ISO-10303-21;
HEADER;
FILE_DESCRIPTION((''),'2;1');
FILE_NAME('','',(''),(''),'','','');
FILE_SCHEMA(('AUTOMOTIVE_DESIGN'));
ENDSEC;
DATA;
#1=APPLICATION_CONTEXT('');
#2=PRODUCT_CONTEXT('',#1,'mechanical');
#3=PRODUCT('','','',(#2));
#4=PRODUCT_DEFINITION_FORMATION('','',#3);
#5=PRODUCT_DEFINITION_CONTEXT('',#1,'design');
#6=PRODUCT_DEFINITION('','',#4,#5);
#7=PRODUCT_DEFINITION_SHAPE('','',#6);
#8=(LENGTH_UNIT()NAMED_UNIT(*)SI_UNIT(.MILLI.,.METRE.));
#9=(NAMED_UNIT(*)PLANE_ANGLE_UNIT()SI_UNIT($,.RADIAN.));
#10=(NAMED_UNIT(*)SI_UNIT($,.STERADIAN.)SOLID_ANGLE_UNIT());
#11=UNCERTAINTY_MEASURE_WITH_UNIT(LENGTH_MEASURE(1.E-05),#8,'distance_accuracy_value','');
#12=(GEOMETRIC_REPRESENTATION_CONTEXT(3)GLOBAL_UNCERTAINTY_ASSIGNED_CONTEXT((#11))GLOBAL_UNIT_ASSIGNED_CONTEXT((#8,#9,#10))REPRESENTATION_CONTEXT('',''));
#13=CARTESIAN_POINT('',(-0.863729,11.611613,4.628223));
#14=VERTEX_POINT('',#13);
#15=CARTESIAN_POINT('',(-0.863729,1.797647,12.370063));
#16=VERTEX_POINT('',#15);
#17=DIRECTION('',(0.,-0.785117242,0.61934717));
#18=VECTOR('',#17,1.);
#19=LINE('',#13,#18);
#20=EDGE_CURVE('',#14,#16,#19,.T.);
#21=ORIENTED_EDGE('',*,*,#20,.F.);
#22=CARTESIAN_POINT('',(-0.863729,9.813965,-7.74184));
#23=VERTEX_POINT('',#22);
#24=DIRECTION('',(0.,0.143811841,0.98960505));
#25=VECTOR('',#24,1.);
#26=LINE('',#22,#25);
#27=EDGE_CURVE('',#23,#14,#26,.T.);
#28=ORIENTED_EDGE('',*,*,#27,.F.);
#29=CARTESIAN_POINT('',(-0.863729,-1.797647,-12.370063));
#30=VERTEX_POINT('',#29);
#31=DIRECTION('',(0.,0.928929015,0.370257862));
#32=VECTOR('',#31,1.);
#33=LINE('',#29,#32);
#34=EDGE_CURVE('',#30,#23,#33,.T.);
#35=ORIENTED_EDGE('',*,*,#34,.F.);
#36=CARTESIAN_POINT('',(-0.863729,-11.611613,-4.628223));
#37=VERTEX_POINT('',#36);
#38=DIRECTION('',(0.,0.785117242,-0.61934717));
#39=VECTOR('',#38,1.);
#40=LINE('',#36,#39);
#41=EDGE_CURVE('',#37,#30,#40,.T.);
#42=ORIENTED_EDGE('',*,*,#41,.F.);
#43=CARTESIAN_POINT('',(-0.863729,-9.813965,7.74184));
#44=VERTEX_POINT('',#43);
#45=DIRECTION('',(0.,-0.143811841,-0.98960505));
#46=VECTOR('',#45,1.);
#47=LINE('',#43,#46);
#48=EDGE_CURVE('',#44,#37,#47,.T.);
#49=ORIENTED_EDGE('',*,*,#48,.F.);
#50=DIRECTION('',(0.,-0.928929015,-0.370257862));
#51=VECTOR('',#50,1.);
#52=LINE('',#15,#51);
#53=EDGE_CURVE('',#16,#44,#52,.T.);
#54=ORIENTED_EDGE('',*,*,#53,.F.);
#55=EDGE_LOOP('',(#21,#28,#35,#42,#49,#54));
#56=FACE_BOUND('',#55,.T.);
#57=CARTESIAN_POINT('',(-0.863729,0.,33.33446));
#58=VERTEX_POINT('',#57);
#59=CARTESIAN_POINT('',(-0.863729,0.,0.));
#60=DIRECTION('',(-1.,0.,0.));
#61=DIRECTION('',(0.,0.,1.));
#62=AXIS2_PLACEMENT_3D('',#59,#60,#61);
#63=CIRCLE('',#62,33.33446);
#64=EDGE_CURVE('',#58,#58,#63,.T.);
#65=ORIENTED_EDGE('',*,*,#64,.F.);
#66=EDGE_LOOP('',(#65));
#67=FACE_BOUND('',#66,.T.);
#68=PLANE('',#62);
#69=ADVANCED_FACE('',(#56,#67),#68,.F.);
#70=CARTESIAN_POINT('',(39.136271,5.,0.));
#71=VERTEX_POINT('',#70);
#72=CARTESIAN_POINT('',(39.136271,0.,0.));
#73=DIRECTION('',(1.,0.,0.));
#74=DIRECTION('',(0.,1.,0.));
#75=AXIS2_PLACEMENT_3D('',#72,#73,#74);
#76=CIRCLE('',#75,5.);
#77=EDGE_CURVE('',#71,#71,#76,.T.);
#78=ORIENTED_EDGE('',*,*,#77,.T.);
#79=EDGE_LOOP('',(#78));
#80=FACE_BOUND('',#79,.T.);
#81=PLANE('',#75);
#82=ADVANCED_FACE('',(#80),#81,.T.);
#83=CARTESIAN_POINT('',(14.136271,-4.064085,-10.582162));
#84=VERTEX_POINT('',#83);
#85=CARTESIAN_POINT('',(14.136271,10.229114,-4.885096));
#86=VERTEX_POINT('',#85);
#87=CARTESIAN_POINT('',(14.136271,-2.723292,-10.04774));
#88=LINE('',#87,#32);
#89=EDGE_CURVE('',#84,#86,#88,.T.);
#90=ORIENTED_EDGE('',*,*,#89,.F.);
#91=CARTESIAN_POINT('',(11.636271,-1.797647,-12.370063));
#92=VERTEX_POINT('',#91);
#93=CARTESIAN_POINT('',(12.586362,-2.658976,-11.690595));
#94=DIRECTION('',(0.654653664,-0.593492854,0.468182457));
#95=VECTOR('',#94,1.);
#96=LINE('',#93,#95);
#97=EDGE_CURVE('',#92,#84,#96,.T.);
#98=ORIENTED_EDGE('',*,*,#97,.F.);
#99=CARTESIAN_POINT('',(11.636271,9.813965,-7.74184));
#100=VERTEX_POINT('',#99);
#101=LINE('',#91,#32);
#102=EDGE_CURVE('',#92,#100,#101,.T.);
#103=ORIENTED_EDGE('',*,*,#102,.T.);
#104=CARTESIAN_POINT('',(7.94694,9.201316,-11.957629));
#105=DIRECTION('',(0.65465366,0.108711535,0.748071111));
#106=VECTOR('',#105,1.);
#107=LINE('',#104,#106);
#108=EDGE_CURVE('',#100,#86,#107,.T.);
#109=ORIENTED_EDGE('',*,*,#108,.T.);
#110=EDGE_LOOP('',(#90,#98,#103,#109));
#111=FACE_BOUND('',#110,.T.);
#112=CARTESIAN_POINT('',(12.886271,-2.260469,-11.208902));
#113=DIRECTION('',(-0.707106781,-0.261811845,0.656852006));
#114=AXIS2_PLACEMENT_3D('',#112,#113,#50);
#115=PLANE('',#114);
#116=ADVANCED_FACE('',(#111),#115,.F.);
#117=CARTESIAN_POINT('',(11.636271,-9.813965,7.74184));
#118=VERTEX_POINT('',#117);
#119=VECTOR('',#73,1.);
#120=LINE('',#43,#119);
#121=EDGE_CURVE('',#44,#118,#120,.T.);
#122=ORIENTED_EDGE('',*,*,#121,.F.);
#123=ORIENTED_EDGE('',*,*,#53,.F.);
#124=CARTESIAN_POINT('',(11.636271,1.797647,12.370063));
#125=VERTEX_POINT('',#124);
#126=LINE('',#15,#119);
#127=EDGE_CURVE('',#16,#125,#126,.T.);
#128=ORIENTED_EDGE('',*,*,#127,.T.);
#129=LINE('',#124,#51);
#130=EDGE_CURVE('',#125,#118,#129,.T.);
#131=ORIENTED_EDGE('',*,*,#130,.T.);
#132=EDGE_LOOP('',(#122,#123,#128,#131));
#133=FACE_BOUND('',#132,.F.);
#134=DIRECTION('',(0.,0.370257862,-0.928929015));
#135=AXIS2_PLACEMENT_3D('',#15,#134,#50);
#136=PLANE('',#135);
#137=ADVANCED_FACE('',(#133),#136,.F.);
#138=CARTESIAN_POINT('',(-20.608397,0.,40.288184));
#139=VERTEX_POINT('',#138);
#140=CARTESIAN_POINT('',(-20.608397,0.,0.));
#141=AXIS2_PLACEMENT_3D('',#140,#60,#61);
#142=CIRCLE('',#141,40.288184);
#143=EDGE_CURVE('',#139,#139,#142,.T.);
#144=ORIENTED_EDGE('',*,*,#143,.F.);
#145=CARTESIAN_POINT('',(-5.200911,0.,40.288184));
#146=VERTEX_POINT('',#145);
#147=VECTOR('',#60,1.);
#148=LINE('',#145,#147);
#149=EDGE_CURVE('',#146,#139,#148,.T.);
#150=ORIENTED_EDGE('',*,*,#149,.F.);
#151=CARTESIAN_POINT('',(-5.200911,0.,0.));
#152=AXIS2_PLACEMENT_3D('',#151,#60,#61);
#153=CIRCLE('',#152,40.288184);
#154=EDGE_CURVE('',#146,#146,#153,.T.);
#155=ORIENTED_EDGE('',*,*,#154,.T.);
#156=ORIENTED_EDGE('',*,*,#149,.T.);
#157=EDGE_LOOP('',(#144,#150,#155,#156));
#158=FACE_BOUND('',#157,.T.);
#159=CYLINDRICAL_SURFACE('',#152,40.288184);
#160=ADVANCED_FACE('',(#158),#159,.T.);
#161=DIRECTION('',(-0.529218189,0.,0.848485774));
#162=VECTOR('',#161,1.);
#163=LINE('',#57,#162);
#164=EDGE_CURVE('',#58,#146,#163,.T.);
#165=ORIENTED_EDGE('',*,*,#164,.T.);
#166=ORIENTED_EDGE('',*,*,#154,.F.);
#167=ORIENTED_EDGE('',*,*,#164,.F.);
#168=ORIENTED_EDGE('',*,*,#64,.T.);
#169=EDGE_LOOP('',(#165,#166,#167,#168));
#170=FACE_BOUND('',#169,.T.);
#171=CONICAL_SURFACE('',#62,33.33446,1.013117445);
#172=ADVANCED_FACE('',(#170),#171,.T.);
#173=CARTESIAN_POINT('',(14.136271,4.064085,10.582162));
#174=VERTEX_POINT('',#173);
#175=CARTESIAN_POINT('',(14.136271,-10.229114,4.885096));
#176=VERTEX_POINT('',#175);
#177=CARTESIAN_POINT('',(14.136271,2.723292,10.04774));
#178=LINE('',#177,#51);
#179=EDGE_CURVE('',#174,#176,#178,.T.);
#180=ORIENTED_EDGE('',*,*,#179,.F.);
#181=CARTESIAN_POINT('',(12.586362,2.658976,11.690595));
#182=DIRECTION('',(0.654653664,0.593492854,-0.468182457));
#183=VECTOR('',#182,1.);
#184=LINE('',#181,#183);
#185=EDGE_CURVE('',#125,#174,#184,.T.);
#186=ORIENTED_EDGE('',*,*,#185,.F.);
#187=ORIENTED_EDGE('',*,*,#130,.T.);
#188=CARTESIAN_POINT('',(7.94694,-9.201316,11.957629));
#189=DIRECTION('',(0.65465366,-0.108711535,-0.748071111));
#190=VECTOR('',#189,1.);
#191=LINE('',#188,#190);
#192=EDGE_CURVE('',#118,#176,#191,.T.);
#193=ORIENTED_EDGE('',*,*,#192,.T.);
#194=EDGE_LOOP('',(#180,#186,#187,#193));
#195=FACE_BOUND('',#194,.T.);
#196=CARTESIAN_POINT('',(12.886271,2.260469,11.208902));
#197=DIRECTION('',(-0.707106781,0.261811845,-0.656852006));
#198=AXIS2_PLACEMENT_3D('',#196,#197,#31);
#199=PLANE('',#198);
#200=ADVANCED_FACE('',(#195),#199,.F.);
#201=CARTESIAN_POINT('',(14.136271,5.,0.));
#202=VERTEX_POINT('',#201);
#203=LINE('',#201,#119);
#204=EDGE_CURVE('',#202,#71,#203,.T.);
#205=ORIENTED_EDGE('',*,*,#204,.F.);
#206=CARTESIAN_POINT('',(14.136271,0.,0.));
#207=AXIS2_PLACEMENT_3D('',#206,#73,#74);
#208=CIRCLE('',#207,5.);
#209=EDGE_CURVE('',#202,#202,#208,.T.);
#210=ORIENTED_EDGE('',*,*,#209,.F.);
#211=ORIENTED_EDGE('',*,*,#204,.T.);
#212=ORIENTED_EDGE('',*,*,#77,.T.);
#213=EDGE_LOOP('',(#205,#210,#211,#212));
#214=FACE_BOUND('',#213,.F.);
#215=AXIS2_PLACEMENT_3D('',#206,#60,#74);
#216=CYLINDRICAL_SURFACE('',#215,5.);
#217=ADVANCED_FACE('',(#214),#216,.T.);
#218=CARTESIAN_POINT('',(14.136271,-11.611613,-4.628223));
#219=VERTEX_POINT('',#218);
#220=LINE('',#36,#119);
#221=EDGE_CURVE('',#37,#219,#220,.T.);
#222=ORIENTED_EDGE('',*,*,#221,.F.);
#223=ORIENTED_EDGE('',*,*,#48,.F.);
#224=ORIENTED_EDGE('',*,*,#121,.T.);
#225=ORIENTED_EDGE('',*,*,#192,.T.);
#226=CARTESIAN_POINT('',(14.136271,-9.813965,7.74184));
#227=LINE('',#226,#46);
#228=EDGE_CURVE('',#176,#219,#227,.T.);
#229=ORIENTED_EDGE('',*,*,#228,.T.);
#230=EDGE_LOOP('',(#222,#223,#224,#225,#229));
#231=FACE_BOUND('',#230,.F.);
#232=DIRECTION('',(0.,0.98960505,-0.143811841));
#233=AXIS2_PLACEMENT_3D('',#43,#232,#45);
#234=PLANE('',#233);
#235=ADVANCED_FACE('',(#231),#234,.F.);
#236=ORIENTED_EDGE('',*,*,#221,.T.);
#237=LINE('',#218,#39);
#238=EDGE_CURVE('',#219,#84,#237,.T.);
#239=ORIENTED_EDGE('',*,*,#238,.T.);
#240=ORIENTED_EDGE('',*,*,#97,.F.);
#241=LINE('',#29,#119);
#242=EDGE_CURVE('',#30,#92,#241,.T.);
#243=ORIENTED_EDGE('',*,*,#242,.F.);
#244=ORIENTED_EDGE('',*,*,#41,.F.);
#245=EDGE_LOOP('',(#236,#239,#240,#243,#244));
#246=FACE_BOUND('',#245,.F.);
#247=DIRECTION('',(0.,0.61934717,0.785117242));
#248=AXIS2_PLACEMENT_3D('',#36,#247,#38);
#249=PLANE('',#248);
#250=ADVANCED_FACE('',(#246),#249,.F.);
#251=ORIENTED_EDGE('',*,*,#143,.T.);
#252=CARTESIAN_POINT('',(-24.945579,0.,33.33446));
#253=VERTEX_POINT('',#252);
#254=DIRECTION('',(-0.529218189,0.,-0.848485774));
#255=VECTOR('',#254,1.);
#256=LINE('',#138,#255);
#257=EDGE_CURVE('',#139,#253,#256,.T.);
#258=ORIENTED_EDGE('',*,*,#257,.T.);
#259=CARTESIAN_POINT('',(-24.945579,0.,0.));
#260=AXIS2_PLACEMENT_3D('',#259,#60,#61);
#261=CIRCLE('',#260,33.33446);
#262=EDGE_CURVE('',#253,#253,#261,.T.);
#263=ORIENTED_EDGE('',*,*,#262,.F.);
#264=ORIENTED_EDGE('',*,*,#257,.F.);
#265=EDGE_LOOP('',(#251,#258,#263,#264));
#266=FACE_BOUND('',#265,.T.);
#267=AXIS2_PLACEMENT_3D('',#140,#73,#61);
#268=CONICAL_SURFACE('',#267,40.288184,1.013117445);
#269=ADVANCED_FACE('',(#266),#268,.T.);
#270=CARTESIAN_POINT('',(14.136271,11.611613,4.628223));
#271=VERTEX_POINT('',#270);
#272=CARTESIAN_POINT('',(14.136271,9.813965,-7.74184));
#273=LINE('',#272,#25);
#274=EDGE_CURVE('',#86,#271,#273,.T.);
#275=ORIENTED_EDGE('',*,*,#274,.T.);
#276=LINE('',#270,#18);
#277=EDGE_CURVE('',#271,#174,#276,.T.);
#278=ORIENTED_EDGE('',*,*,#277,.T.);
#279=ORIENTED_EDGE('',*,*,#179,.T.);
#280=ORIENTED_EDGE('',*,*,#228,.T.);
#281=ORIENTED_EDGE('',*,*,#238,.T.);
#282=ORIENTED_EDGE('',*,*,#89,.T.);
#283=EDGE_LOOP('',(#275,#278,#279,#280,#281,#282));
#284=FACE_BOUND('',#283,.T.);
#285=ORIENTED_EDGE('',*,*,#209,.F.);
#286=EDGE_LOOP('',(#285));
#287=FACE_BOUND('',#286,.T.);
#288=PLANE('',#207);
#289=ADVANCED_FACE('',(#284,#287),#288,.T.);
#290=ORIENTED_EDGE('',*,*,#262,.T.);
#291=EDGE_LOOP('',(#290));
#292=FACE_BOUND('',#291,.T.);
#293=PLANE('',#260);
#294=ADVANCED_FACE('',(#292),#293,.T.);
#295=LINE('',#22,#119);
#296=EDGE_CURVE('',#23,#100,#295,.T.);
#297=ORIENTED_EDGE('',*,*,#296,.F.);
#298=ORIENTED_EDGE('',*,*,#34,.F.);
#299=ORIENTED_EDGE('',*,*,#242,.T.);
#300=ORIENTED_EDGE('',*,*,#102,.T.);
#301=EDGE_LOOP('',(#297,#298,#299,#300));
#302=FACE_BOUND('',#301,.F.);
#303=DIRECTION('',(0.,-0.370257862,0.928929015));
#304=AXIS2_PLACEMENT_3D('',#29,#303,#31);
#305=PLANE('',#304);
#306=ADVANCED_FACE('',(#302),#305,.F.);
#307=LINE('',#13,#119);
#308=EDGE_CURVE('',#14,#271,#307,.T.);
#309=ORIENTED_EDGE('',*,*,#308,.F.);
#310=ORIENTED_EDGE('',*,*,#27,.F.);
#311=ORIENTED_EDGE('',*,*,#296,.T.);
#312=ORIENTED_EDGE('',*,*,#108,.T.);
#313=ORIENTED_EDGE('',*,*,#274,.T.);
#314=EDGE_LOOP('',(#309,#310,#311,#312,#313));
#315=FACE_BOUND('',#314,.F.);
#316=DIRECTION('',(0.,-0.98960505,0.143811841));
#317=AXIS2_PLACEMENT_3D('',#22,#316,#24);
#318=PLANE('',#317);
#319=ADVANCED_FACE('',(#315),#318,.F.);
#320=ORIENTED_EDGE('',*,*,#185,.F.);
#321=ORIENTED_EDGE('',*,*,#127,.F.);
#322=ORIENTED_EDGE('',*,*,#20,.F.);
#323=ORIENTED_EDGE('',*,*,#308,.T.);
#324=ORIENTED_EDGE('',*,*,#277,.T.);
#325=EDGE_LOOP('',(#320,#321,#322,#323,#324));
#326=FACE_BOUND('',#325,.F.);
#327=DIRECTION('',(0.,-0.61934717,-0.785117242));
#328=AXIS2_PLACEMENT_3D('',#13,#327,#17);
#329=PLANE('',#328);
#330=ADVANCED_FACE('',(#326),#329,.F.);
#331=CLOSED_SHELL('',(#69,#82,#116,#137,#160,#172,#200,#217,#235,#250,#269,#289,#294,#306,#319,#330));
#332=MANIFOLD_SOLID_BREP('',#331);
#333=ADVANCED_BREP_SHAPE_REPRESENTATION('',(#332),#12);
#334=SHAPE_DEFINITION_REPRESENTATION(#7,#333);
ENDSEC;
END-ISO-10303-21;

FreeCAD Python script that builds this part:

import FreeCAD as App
import Part
import Sketcher
Q = App.Units.Quantity


def edges_at(feature, points):
    """Names of the edges that pass closest to the given points."""
    edges = feature.Shape.Edges
    near = lambda p: min(range(len(edges)), key=lambda i: edges[i].distToShape(Part.Vertex(*p))[0])
    return sorted({f"Edge{near(p) + 1}" for p in points})


def add_polygon(sketch, points):
    """Adds a closed chain of lines whose ends are joined by coincident constraints."""
    first, n = sketch.GeometryCount, len(points)
    for a, b in zip(points, points[1:] + points[:1]):
        sketch.addGeometry(Part.LineSegment(App.Vector(*a, 0), App.Vector(*b, 0)), False)
    for i in range(n):
        sketch.addConstraint(Sketcher.Constraint("Coincident", first + i, 2, first + (i + 1) % n, 1))

doc = App.newDocument("Part")
body = doc.addObject("PartDesign::Body", "Body")

sketch1 = doc.addObject("Sketcher::SketchObject", "Sketch")
body.addObject(sketch1)
sketch1.AttachmentSupport = (doc.XZ_Plane, [""])
sketch1.MapMode = "FlatFace"
add_polygon(sketch1, [(-24.945579, 0), (-0.863729, 0), (-0.863729, 33.33446), (-5.200911, 40.288184), (-20.608397, 40.288184), (-24.945579, 33.33446)])
sketch1.addConstraint([
    Sketcher.Constraint("Horizontal", 0),
    Sketcher.Constraint("Vertical", 1),
    Sketcher.Constraint("Horizontal", 3),
    Sketcher.Constraint("Vertical", 5),
    Sketcher.Constraint("PointOnObject", 0, 2, -1),
    Sketcher.Constraint("Horizontal", 1, 2, 4, 2),
    Sketcher.Constraint("Equal", 2, 4),
    Sketcher.Constraint("DistanceX", 0, 1, 0, 2, Q("24.08185 mm")),
    Sketcher.Constraint("DistanceY", 1, 1, 1, 2, Q("33.33446 mm")),
    Sketcher.Constraint("Distance", 2, Q("8.195451 mm")),
    Sketcher.Constraint("DistanceX", 3, 2, 3, 1, Q("15.407486 mm")),
    Sketcher.Constraint("DistanceX", 0, 2, -1, 1, Q("0.863729 mm")),
])
revolution = doc.addObject("PartDesign::Revolution", "Revolution")
body.addObject(revolution)
revolution.Profile = sketch1
revolution.ReferenceAxis = (sketch1, ["H_Axis"])
revolution.Angle = 360

sketch2 = doc.addObject("Sketcher::SketchObject", "Sketch001")
body.addObject(sketch2)
sketch2.AttachmentSupport = (doc.YZ_Plane, [""])
sketch2.MapMode = "FlatFace"
sketch2.AttachmentOffset = App.Placement(App.Vector(0, 0, -0.863729), App.Rotation())
add_polygon(sketch2, [(9.813965, -7.74184), (11.611613, 4.628223), (1.797647, 12.370063), (-9.813965, 7.74184), (-11.611613, -4.628223), (-1.797647, -12.370063)])
sketch2.addConstraint([
    Sketcher.Constraint("Symmetric", 0, 2, 3, 2, -1, 1),
    Sketcher.Constraint("Symmetric", 1, 2, 4, 2, -1, 1),
    Sketcher.Constraint("Symmetric", 2, 2, 5, 2, -1, 1),
    Sketcher.Constraint("Equal", 0, 1),
    Sketcher.Constraint("Equal", 1, 2),
    Sketcher.Constraint("Distance", 0, Q("12.5 mm")),
    Sketcher.Constraint("DistanceY", -1, 1, 2, 2, Q("7.74184 mm")),
    Sketcher.Constraint("DistanceY", 0, 2, 1, 2, Q("7.74184 mm")),
    Sketcher.Constraint("DistanceX", 2, 2, 1, 2, Q("11.611612 mm")),
])
pad1 = doc.addObject("PartDesign::Pad", "Pad")
body.addObject(pad1)
pad1.Profile = sketch2
pad1.Length = 15

sketch3 = doc.addObject("Sketcher::SketchObject", "Sketch002")
body.addObject(sketch3)
sketch3.AttachmentSupport = (doc.YZ_Plane, [""])
sketch3.MapMode = "FlatFace"
sketch3.AttachmentOffset = App.Placement(App.Vector(0, 0, 14.136271), App.Rotation())
sketch3.addGeometry(Part.Circle(App.Vector(0, 0, 0), App.Vector(0, 0, 1), 5), False)
sketch3.addConstraint([
    Sketcher.Constraint("Coincident", 0, 3, -1, 1),
    Sketcher.Constraint("Diameter", 0, Q("10 mm")),
])
pad2 = doc.addObject("PartDesign::Pad", "Pad001")
body.addObject(pad2)
pad2.Profile = sketch3
pad2.Length = 25
doc.recompute()

chamfer = doc.addObject("PartDesign::Chamfer", "Chamfer")
body.addObject(chamfer)
chamfer.Base = (pad2, edges_at(pad2, [(14.136, 4.008, -10.056), (14.136, -4.008, 10.056)]))
chamfer.Size = 2.5

doc.recompute()
